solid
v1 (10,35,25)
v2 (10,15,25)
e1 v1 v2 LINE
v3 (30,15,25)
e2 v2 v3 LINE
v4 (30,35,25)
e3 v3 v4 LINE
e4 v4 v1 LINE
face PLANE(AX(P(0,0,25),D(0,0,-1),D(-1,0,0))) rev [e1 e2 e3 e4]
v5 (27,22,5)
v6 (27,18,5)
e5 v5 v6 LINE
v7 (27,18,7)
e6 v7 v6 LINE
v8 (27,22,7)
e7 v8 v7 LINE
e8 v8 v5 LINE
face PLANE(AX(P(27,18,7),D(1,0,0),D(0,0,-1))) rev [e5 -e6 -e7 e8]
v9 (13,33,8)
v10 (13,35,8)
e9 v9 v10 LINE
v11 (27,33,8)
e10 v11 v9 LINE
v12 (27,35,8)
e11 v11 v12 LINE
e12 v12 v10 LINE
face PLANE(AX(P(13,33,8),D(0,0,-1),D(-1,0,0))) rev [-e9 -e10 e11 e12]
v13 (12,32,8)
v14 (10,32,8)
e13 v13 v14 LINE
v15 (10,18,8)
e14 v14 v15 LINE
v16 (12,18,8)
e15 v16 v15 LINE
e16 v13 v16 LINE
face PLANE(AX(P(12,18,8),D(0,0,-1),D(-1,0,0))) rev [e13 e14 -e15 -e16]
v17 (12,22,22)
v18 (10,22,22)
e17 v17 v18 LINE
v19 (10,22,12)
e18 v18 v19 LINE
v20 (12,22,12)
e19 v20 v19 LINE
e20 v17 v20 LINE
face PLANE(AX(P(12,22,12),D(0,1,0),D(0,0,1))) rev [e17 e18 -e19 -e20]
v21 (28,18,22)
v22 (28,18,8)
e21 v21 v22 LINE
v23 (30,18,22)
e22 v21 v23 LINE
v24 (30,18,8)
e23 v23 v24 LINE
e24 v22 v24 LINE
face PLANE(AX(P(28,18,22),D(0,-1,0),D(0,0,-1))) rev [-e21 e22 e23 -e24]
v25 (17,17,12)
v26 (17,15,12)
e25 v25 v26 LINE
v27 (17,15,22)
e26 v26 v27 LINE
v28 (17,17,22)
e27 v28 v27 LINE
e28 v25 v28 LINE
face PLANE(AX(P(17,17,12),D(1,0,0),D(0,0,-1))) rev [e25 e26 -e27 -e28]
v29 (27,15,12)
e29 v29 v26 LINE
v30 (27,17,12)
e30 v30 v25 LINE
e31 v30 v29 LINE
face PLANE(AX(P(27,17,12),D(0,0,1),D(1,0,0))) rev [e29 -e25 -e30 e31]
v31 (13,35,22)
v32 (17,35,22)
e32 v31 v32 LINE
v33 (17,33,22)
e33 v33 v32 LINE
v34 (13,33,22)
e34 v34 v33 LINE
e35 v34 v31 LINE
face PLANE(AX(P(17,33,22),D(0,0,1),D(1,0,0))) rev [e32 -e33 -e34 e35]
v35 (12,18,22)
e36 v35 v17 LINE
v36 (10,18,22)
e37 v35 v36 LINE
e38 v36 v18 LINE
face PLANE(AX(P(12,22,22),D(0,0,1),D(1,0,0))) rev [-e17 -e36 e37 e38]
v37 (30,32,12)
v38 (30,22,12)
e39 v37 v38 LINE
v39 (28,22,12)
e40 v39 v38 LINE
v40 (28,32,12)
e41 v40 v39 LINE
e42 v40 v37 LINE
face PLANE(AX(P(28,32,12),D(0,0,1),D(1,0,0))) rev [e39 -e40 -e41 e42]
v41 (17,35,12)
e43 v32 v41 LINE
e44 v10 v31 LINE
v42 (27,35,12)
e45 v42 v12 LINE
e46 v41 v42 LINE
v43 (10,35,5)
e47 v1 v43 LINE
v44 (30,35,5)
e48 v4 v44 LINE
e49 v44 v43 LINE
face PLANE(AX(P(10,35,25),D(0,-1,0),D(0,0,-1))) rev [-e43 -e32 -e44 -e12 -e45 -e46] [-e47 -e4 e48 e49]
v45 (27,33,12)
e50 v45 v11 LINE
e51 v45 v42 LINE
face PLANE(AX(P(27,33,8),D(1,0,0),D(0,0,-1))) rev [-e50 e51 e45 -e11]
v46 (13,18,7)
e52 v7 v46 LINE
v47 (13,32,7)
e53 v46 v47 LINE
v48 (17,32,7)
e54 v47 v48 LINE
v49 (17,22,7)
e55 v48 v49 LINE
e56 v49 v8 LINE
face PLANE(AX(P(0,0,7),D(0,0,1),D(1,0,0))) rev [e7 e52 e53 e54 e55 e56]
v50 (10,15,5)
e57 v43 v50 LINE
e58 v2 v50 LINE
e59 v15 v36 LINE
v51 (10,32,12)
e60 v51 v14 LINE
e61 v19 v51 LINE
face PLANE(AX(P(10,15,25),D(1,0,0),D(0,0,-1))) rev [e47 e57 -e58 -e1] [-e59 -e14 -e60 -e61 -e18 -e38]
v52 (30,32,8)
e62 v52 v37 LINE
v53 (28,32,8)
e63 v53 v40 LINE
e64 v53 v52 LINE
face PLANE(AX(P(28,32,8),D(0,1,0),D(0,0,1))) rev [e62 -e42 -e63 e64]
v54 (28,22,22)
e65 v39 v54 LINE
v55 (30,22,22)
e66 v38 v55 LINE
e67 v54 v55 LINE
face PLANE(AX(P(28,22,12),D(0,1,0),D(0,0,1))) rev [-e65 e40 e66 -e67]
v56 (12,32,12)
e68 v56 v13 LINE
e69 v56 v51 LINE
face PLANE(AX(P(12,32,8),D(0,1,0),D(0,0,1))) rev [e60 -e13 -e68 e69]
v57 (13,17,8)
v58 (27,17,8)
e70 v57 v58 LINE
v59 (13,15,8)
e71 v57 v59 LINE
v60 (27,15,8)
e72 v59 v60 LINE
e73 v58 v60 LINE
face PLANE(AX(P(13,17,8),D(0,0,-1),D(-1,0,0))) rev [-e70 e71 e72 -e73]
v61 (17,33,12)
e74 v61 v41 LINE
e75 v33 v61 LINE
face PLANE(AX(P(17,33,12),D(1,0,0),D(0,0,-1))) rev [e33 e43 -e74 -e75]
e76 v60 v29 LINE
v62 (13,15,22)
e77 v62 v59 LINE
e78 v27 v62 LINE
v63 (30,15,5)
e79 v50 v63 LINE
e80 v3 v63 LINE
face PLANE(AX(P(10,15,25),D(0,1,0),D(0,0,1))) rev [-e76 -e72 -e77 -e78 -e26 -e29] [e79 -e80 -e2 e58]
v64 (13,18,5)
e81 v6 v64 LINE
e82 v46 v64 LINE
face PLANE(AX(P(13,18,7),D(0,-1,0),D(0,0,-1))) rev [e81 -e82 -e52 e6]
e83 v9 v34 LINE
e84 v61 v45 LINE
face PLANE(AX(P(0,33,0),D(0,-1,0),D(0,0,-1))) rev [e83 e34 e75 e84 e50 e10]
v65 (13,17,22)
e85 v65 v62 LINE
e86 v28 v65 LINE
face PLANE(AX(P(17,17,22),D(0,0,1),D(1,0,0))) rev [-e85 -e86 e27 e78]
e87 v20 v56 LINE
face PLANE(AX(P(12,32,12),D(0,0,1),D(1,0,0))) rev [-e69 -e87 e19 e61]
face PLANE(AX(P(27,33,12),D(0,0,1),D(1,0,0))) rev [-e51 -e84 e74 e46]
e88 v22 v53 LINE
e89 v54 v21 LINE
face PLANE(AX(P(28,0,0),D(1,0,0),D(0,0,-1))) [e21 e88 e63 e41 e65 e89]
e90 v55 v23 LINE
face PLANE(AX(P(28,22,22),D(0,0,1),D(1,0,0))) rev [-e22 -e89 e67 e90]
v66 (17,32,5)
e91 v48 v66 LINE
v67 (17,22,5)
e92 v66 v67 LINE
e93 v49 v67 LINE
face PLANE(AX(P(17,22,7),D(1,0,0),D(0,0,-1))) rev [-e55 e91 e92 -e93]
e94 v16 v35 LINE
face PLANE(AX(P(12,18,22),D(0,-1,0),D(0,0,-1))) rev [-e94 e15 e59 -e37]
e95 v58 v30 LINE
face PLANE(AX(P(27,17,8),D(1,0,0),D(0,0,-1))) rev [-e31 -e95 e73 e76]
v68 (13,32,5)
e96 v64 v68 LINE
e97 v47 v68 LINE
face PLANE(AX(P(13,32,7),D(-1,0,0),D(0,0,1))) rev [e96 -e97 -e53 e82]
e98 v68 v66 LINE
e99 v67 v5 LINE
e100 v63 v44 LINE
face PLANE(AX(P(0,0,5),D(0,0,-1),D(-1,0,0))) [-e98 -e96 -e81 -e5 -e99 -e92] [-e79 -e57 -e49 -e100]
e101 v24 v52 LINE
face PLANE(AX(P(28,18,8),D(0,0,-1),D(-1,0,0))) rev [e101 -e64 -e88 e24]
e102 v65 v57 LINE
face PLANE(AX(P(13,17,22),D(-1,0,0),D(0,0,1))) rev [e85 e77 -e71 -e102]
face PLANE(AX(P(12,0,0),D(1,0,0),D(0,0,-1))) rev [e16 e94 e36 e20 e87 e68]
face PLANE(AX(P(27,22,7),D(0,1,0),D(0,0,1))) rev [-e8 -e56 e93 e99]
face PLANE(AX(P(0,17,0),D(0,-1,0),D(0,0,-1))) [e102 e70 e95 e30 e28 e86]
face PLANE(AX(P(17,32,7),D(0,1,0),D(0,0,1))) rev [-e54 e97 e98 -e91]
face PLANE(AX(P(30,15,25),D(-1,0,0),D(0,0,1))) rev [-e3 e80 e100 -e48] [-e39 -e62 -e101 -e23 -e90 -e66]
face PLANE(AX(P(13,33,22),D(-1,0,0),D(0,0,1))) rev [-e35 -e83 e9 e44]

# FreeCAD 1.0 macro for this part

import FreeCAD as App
import Part
import Sketcher
from FreeCAD import Vector
Q = App.Units.Quantity


def add_polygon(sketch, points):
    """Adds a closed chain of lines whose ends are joined by coincident constraints."""
    first, n = sketch.GeometryCount, len(points)
    for a, b in zip(points, points[1:] + points[:1]):
        sketch.addGeometry(Part.LineSegment(App.Vector(*a, 0), App.Vector(*b, 0)), False)
    for i in range(n):
        sketch.addConstraint(Sketcher.Constraint("Coincident", first + i, 2, first + (i + 1) % n, 1))

doc = App.newDocument("Part")
params = doc.addObject("Spreadsheet::Sheet", "Params")
for row, (alias, value) in enumerate([
    ("sketch1_width", "20 mm"),
    ("pad1_length", "20 mm"),
    ("sketch2_width", "14 mm"),
    ("sketch2_width2", "10 mm"),
    ("pocket1_length", "2 mm"),
    ("sketch3_width", "14 mm"),
    ("sketch3_width2", "4 mm"),
    ("pocket2_length", "2 mm"),
    ("sketch4_width", "14 mm"),
    ("sketch4_width2", "4 mm"),
    ("pocket3_length", "2 mm"),
    ("sketch5_width", "14 mm"),
    ("sketch5_width2", "10 mm"),
    ("pocket4_length", "2 mm"),
    ("sketch6_width", "14 mm"),
    ("sketch6_width2", "4 mm"),
    ("pocket5_length", "2 mm"),
], start=1):
    params.set(f"A{row}", alias)
    params.set(f"B{row}", "=" + value)
    params.setAlias(f"B{row}", alias)

body = doc.addObject("PartDesign::Body", "Body")

sketch1 = body.newObject("Sketcher::SketchObject", "Sketch")
sketch1.AttachmentSupport = (doc.getObject("XY_Plane"), [""])
sketch1.MapMode = "FlatFace"
sketch1.AttachmentOffset = App.Placement(Vector(0, 0, 5), App.Rotation())
add_polygon(sketch1, [(10, 35), (10, 15), (30, 15), (30, 35)])
sketch1.addConstraint(Sketcher.Constraint("Vertical", 0))
sketch1.addConstraint(Sketcher.Constraint("Horizontal", 1))
sketch1.addConstraint(Sketcher.Constraint("Vertical", 2))
sketch1.addConstraint(Sketcher.Constraint("Horizontal", 3))
sketch1.addConstraint(Sketcher.Constraint("Equal", 3, 0))
sketch1.addConstraint(Sketcher.Constraint("DistanceX", 1, 1, 1, 2, Q("20 mm")))
sketch1.addConstraint(Sketcher.Constraint("DistanceX", -1, 1, 0, 2, Q("10 mm")))
sketch1.addConstraint(Sketcher.Constraint("DistanceY", -1, 1, 0, 2, Q("15 mm")))
sketch1.setExpression("Constraints[9]", "Params.sketch1_width")
pad1 = body.newObject("PartDesign::Pad", "Pad")
pad1.Profile = sketch1
pad1.setExpression("Length", "Params.pad1_length")

sketch2 = body.newObject("Sketcher::SketchObject", "Sketch001")
sketch2.AttachmentSupport = (doc.getObject("YZ_Plane"), [""])
sketch2.MapMode = "FlatFace"
sketch2.AttachmentOffset = App.Placement(Vector(0, 0, 30), App.Rotation())
add_polygon(sketch2, [(18, 8), (32, 8), (32, 12), (22, 12), (22, 22), (18, 22)])
sketch2.addConstraint(Sketcher.Constraint("Horizontal", 0))
sketch2.addConstraint(Sketcher.Constraint("Vertical", 1))
sketch2.addConstraint(Sketcher.Constraint("Horizontal", 2))
sketch2.addConstraint(Sketcher.Constraint("Vertical", 3))
sketch2.addConstraint(Sketcher.Constraint("Horizontal", 4))
sketch2.addConstraint(Sketcher.Constraint("Vertical", 5))
sketch2.addConstraint(Sketcher.Constraint("Equal", 4, 1))
sketch2.addConstraint(Sketcher.Constraint("Equal", 2, 3))
sketch2.addConstraint(Sketcher.Constraint("DistanceX", 0, 1, 0, 2, Q("14 mm")))
sketch2.addConstraint(Sketcher.Constraint("DistanceX", 2, 2, 2, 1, Q("10 mm")))
sketch2.addConstraint(Sketcher.Constraint("DistanceX", -1, 1, 0, 2, Q("32 mm")))
sketch2.addConstraint(Sketcher.Constraint("DistanceY", -1, 1, 0, 2, Q("8 mm")))
sketch2.setExpression("Constraints[14]", "Params.sketch2_width")
sketch2.setExpression("Constraints[15]", "Params.sketch2_width2")
pocket1 = body.newObject("PartDesign::Pocket", "Pocket")
pocket1.Profile = sketch2
pocket1.setExpression("Length", "Params.pocket1_length")

sketch3 = body.newObject("Sketcher::SketchObject", "Sketch002")
sketch3.AttachmentSupport = (doc.getObject("YZ_Plane"), [""])
sketch3.MapMode = "FlatFace"
sketch3.AttachmentOffset = App.Placement(Vector(0, 0, 10), App.Rotation())
add_polygon(sketch3, [(32, 8), (18, 8), (18, 22), (22, 22), (22, 12), (32, 12)])
sketch3.addConstraint(Sketcher.Constraint("Horizontal", 0))
sketch3.addConstraint(Sketcher.Constraint("Vertical", 1))
sketch3.addConstraint(Sketcher.Constraint("Horizontal", 2))
sketch3.addConstraint(Sketcher.Constraint("Vertical", 3))
sketch3.addConstraint(Sketcher.Constraint("Horizontal", 4))
sketch3.addConstraint(Sketcher.Constraint("Vertical", 5))
sketch3.addConstraint(Sketcher.Constraint("Equal", 0, 1))
sketch3.addConstraint(Sketcher.Constraint("Equal", 4, 3))
sketch3.addConstraint(Sketcher.Constraint("DistanceX", 0, 2, 0, 1, Q("14 mm")))
sketch3.addConstraint(Sketcher.Constraint("DistanceX", 2, 1, 2, 2, Q("4 mm")))
sketch3.addConstraint(Sketcher.Constraint("DistanceX", -1, 1, 0, 2, Q("18 mm")))
sketch3.addConstraint(Sketcher.Constraint("DistanceY", -1, 1, 0, 2, Q("8 mm")))
sketch3.setExpression("Constraints[14]", "Params.sketch3_width")
sketch3.setExpression("Constraints[15]", "Params.sketch3_width2")
pocket2 = body.newObject("PartDesign::Pocket", "Pocket001")
pocket2.Profile = sketch3
pocket2.setExpression("Length", "Params.pocket2_length")
pocket2.Reversed = True

sketch4 = body.newObject("Sketcher::SketchObject", "Sketch003")
sketch4.AttachmentSupport = (doc.getObject("XZ_Plane"), [""])
sketch4.MapMode = "FlatFace"
sketch4.AttachmentOffset = App.Placement(Vector(0, 0, -35), App.Rotation())
add_polygon(sketch4, [(27, 8), (13, 8), (13, 22), (17, 22), (17, 12), (27, 12)])
sketch4.addConstraint(Sketcher.Constraint("Horizontal", 0))
sketch4.addConstraint(Sketcher.Constraint("Vertical", 1))
sketch4.addConstraint(Sketcher.Constraint("Horizontal", 2))
sketch4.addConstraint(Sketcher.Constraint("Vertical", 3))
sketch4.addConstraint(Sketcher.Constraint("Horizontal", 4))
sketch4.addConstraint(Sketcher.Constraint("Vertical", 5))
sketch4.addConstraint(Sketcher.Constraint("Equal", 0, 1))
sketch4.addConstraint(Sketcher.Constraint("Equal", 4, 3))
sketch4.addConstraint(Sketcher.Constraint("DistanceX", 0, 2, 0, 1, Q("14 mm")))
sketch4.addConstraint(Sketcher.Constraint("DistanceX", 2, 1, 2, 2, Q("4 mm")))
sketch4.addConstraint(Sketcher.Constraint("DistanceX", -1, 1, 0, 2, Q("13 mm")))
sketch4.addConstraint(Sketcher.Constraint("DistanceY", -1, 1, 0, 2, Q("8 mm")))
sketch4.setExpression("Constraints[14]", "Params.sketch4_width")
sketch4.setExpression("Constraints[15]", "Params.sketch4_width2")
pocket3 = body.newObject("PartDesign::Pocket", "Pocket002")
pocket3.Profile = sketch4
pocket3.setExpression("Length", "Params.pocket3_length")
pocket3.Reversed = True

sketch5 = body.newObject("Sketcher::SketchObject", "Sketch004")
sketch5.AttachmentSupport = (doc.getObject("XZ_Plane"), [""])
sketch5.MapMode = "FlatFace"
sketch5.AttachmentOffset = App.Placement(Vector(0, 0, -15), App.Rotation())
add_polygon(sketch5, [(13, 8), (27, 8), (27, 12), (17, 12), (17, 22), (13, 22)])
sketch5.addConstraint(Sketcher.Constraint("Horizontal", 0))
sketch5.addConstraint(Sketcher.Constraint("Vertical", 1))
sketch5.addConstraint(Sketcher.Constraint("Horizontal", 2))
sketch5.addConstraint(Sketcher.Constraint("Vertical", 3))
sketch5.addConstraint(Sketcher.Constraint("Horizontal", 4))
sketch5.addConstraint(Sketcher.Constraint("Vertical", 5))
sketch5.addConstraint(Sketcher.Constraint("Equal", 4, 1))
sketch5.addConstraint(Sketcher.Constraint("Equal", 2, 3))
sketch5.addConstraint(Sketcher.Constraint("DistanceX", 0, 1, 0, 2, Q("14 mm")))
sketch5.addConstraint(Sketcher.Constraint("DistanceX", 2, 2, 2, 1, Q("10 mm")))
sketch5.addConstraint(Sketcher.Constraint("DistanceX", -1, 1, 0, 2, Q("27 mm")))
sketch5.addConstraint(Sketcher.Constraint("DistanceY", -1, 1, 0, 2, Q("8 mm")))
sketch5.setExpression("Constraints[14]", "Params.sketch5_width")
sketch5.setExpression("Constraints[15]", "Params.sketch5_width2")
pocket4 = body.newObject("PartDesign::Pocket", "Pocket003")
pocket4.Profile = sketch5
pocket4.setExpression("Length", "Params.pocket4_length")

sketch6 = body.newObject("Sketcher::SketchObject", "Sketch005")
sketch6.AttachmentSupport = (doc.getObject("XY_Plane"), [""])
sketch6.MapMode = "FlatFace"
sketch6.AttachmentOffset = App.Placement(Vector(0, 0, 5), App.Rotation())
add_polygon(sketch6, [(27, 18), (13, 18), (13, 32), (17, 32), (17, 22), (27, 22)])
sketch6.addConstraint(Sketcher.Constraint("Horizontal", 0))
sketch6.addConstraint(Sketcher.Constraint("Vertical", 1))
sketch6.addConstraint(Sketcher.Constraint("Horizontal", 2))
sketch6.addConstraint(Sketcher.Constraint("Vertical", 3))
sketch6.addConstraint(Sketcher.Constraint("Horizontal", 4))
sketch6.addConstraint(Sketcher.Constraint("Vertical", 5))
sketch6.addConstraint(Sketcher.Constraint("Equal", 0, 1))
sketch6.addConstraint(Sketcher.Constraint("Equal", 4, 3))
sketch6.addConstraint(Sketcher.Constraint("DistanceX", 0, 2, 0, 1, Q("14 mm")))
sketch6.addConstraint(Sketcher.Constraint("DistanceX", 2, 1, 2, 2, Q("4 mm")))
sketch6.addConstraint(Sketcher.Constraint("DistanceX", -1, 1, 0, 2, Q("13 mm")))
sketch6.addConstraint(Sketcher.Constraint("DistanceY", -1, 1, 0, 2, Q("18 mm")))
sketch6.setExpression("Constraints[14]", "Params.sketch6_width")
sketch6.setExpression("Constraints[15]", "Params.sketch6_width2")
pocket5 = body.newObject("PartDesign::Pocket", "Pocket004")
pocket5.Profile = sketch6
pocket5.setExpression("Length", "Params.pocket5_length")
pocket5.Reversed = True

doc.recompute()
